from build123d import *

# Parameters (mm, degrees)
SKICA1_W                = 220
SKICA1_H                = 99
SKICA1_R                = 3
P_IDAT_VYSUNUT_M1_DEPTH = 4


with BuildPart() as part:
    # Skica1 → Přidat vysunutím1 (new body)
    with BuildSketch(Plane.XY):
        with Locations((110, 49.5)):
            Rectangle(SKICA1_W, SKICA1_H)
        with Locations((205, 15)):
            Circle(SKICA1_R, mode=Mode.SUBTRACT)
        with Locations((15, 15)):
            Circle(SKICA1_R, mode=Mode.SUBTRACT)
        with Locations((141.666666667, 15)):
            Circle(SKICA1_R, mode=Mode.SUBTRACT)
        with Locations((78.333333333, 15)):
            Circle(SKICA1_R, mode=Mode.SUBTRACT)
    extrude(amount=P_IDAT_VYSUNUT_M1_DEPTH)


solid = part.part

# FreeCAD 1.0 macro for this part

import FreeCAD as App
import Part
import Sketcher
from FreeCAD import Vector
Q = App.Units.Quantity


def add_polygon(sketch, points):
    """Adds a closed chain of lines whose ends are joined by coincident constraints."""
    first, n = sketch.GeometryCount, len(points)
    for a, b in zip(points, points[1:] + points[:1]):
        sketch.addGeometry(Part.LineSegment(App.Vector(*a, 0), App.Vector(*b, 0)), False)
    for i in range(n):
        sketch.addConstraint(Sketcher.Constraint("Coincident", first + i, 2, first + (i + 1) % n, 1))

doc = App.newDocument("Part")
body = doc.addObject("PartDesign::Body", "Body")

# Sketch on XY plane
sketch1 = body.newObject("Sketcher::SketchObject", "Sketch")
sketch1.AttachmentSupport = (doc.getObject("XY_Plane"), [""])
sketch1.MapMode = "FlatFace"
add_polygon(sketch1, [(0, 99), (0, 0), (220, 0), (220, 99)])  # lines 0-3
sketch1.addGeometry(Part.Circle(Vector(15, 15, 0), Vector(0, 0, 1), 3), False)  # 4
sketch1.addGeometry(Part.Circle(Vector(78.3, 15, 0), Vector(0, 0, 1), 3), False)  # 5
sketch1.addGeometry(Part.Circle(Vector(141.7, 15, 0), Vector(0, 0, 1), 3), False)  # 6
sketch1.addGeometry(Part.Circle(Vector(205, 15, 0), Vector(0, 0, 1), 3), False)  # 7
sketch1.addConstraint(Sketcher.Constraint("Vertical", 0))
sketch1.addConstraint(Sketcher.Constraint("Horizontal", 1))
sketch1.addConstraint(Sketcher.Constraint("Vertical", 2))
sketch1.addConstraint(Sketcher.Constraint("Horizontal", 3))
sketch1.addConstraint(Sketcher.Constraint("Coincident", 0, 2, -1, 1))
sketch1.addConstraint(Sketcher.Constraint("Equal", 4, 5))
sketch1.addConstraint(Sketcher.Constraint("Equal", 5, 6))
sketch1.addConstraint(Sketcher.Constraint("Equal", 6, 7))
sketch1.addConstraint(Sketcher.Constraint("Horizontal", 4, 3, 5, 3))
sketch1.addConstraint(Sketcher.Constraint("Horizontal", 5, 3, 6, 3))
sketch1.addConstraint(Sketcher.Constraint("Horizontal", 6, 3, 7, 3))
sketch1.addConstraint(Sketcher.Constraint("Diameter", 4, Q("6 mm")))
sketch1.addConstraint(Sketcher.Constraint("DistanceX", 1, 1, 1, 2, Q("220 mm")))
sketch1.addConstraint(Sketcher.Constraint("DistanceY", 0, 2, 0, 1, Q("99 mm")))
sketch1.addConstraint(Sketcher.Constraint("DistanceX", -1, 1, 4, 3, Q("15 mm")))
sketch1.addConstraint(Sketcher.Constraint("DistanceY", -1, 1, 4, 3, Q("15 mm")))
sketch1.addConstraint(Sketcher.Constraint("DistanceX", -1, 1, 7, 3, Q("205 mm")))
sketch1.addConstraint(Sketcher.Constraint("DistanceX", -1, 1, 5, 3, Q("78.333333 mm")))
sketch1.addConstraint(Sketcher.Constraint("DistanceX", -1, 1, 6, 3, Q("141.666667 mm")))
pad1 = body.newObject("PartDesign::Pad", "Pad")
pad1.Profile = sketch1
pad1.Length = 4

doc.recompute()
